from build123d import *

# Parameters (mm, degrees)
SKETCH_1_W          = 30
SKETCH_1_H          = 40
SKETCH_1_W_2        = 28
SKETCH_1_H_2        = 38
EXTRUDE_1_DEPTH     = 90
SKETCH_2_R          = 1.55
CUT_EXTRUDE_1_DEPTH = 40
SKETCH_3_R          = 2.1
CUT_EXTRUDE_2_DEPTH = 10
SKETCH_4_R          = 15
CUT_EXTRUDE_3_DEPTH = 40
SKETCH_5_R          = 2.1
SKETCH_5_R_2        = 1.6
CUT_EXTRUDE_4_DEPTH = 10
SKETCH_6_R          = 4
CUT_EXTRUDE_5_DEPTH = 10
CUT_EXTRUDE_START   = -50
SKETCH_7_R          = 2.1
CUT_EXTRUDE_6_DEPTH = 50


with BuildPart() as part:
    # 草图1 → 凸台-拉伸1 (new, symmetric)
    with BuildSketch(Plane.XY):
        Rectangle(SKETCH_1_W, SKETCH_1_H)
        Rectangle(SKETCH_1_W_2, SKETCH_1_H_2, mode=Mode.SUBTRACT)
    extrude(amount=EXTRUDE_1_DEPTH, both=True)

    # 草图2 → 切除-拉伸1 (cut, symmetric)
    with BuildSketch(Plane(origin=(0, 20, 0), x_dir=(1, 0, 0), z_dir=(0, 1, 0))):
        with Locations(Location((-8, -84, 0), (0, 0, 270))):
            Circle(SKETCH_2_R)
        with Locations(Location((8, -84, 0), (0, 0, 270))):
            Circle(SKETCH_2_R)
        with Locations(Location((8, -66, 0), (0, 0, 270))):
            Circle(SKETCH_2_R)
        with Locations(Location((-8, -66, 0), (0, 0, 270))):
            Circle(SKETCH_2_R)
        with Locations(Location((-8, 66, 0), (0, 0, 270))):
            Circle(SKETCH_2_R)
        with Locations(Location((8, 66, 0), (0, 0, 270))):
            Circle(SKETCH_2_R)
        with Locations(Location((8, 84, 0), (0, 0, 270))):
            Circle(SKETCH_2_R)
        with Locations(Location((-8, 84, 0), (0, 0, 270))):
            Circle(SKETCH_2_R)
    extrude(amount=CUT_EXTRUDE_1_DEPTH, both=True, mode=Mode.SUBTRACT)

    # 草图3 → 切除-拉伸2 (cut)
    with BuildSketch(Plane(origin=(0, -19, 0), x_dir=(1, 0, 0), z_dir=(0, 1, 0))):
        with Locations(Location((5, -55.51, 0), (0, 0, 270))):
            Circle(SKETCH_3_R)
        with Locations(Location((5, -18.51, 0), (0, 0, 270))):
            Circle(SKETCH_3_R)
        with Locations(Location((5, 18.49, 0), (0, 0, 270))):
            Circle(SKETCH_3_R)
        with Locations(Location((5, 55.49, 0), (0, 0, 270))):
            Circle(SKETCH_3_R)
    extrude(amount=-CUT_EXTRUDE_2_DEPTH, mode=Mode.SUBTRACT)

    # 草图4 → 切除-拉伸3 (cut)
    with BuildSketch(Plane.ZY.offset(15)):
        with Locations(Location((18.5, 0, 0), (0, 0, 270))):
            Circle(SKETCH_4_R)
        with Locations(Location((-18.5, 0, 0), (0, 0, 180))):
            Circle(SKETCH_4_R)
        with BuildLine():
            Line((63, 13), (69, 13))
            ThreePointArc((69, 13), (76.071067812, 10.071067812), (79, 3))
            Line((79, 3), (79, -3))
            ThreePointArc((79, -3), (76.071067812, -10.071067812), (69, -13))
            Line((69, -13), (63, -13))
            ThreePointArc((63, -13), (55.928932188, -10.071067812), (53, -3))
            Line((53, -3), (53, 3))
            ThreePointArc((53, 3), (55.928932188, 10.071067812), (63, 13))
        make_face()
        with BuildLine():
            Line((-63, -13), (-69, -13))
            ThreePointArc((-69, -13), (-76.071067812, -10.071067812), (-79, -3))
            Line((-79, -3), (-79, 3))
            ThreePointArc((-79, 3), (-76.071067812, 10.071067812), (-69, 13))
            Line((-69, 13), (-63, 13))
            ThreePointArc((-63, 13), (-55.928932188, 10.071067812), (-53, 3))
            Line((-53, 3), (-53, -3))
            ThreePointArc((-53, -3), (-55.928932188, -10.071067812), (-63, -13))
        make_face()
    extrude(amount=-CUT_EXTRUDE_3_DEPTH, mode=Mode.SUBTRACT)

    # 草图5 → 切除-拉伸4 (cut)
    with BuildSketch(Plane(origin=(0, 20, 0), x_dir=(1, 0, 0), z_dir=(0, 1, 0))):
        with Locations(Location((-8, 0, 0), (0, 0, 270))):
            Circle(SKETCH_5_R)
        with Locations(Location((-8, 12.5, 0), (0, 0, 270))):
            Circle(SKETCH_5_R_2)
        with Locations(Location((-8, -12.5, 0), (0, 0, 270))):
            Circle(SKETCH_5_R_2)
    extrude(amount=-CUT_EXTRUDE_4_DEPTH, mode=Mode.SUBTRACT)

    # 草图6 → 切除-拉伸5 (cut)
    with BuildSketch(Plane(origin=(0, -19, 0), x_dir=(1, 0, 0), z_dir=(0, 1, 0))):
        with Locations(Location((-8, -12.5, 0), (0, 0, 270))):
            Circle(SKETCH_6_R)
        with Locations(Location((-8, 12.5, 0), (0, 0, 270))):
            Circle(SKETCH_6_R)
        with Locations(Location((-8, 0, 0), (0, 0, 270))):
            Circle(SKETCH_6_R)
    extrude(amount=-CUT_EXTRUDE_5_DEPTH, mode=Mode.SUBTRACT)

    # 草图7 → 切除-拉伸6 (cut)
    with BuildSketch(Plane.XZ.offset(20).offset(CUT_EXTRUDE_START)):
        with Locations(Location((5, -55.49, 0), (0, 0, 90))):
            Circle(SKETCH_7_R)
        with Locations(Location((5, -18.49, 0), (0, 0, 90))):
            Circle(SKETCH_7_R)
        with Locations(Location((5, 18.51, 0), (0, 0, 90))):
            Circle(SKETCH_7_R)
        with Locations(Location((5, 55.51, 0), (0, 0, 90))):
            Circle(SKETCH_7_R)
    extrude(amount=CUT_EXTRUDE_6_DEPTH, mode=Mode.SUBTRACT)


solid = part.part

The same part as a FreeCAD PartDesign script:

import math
import FreeCAD as App
import Part
import Sketcher

V = App.Vector
Q = App.Units.Quantity


def add_polygon(sketch, points):
    """Adds a closed chain of lines whose ends are joined by coincident constraints."""
    first, n = sketch.GeometryCount, len(points)
    for a, b in zip(points, points[1:] + points[:1]):
        sketch.addGeometry(Part.LineSegment(App.Vector(*a, 0), App.Vector(*b, 0)), False)
    for i in range(n):
        sketch.addConstraint(Sketcher.Constraint("Coincident", first + i, 2, first + (i + 1) % n, 1))

doc = App.newDocument("Part")
params = doc.addObject("Spreadsheet::Sheet", "Params")
for row, (alias, value) in enumerate([
    ("sketch1_width", "30 mm"),
    ("sketch1_width2", "28 mm"),
    ("sketch1_height", "40 mm"),
    ("sketch1_height2", "38 mm"),
    ("pad1_length", "180 mm"),
    ("sketch2_diameter", "3.1 mm"),
    ("pocket1_length", "80 mm"),
    ("sketch3_diameter", "4.2 mm"),
    ("pocket2_length", "10 mm"),
    ("sketch4_diameter", "30 mm"),
    ("sketch4_radius", "10 mm"),
    ("sketch4_width", "6 mm"),
    ("pocket3_length", "40 mm"),
    ("sketch5_diameter", "4.2 mm"),
    ("sketch5_diameter2", "3.2 mm"),
    ("pocket4_length", "10 mm"),
    ("sketch6_diameter", "8 mm"),
    ("pocket5_length", "10 mm"),
    ("sketch7_diameter", "4.2 mm"),
    ("pocket6_length", "50 mm"),
], start=1):
    params.set(f"A{row}", alias)
    params.set(f"B{row}", "=" + value)
    params.setAlias(f"B{row}", alias)

body = doc.addObject("PartDesign::Body", "Body")

# Sketch on XY plane
sketch1 = body.newObject("Sketcher::SketchObject", "Sketch")
sketch1.AttachmentSupport = (doc.getObject("XY_Plane"), [""])
sketch1.MapMode = "FlatFace"
add_polygon(sketch1, [(-15, 20), (-15, -20), (15, -20), (15, 20)])  # lines 0-3
add_polygon(sketch1, [(14, -19), (-14, -19), (-14, 19), (14, 19)])  # lines 4-7
sketch1.addConstraint([
    Sketcher.Constraint("Vertical", 0),
    Sketcher.Constraint("Horizontal", 1),
    Sketcher.Constraint("Vertical", 2),
    Sketcher.Constraint("Horizontal", 3),
    Sketcher.Constraint("Horizontal", 4),
    Sketcher.Constraint("Vertical", 5),
    Sketcher.Constraint("Horizontal", 6),
    Sketcher.Constraint("Vertical", 7),
    Sketcher.Constraint("Symmetric", 0, 2, 2, 2, -1, 1),
    Sketcher.Constraint("Symmetric", 4, 2, 6, 2, -1, 1),
    Sketcher.Constraint("DistanceX", 1, 1, 1, 2, Q("30 mm")),
    Sketcher.Constraint("DistanceX", 4, 2, 4, 1, Q("28 mm")),
    Sketcher.Constraint("DistanceY", 0, 2, 0, 1, Q("40 mm")),
    Sketcher.Constraint("DistanceY", 5, 1, 5, 2, Q("38 mm")),
])
sketch1.setExpression("Constraints[18]", "Params.sketch1_width")
sketch1.setExpression("Constraints[19]", "Params.sketch1_width2")
sketch1.setExpression("Constraints[20]", "Params.sketch1_height")
sketch1.setExpression("Constraints[21]", "Params.sketch1_height2")
pad1 = body.newObject("PartDesign::Pad", "Pad")
pad1.Profile = sketch1
pad1.setExpression("Length", "Params.pad1_length")
pad1.Midplane = True

# Sketch on XZ plane
sketch2 = body.newObject("Sketcher::SketchObject", "Sketch001")
sketch2.AttachmentSupport = (doc.getObject("XZ_Plane"), [""])
sketch2.MapMode = "FlatFace"
sketch2.AttachmentOffset = App.Placement(V(0, 0, -20), App.Rotation())
sketch2.addGeometry([
    Part.Circle(V(-8, 84, 0), V(0, 0, 1), 1.55),  # 0
    Part.Circle(V(8, 84, 0), V(0, 0, 1), 1.55),  # 1
    Part.Circle(V(8, 66, 0), V(0, 0, 1), 1.55),  # 2
    Part.Circle(V(-8, 66, 0), V(0, 0, 1), 1.55),  # 3
    Part.Circle(V(-8, -66, 0), V(0, 0, 1), 1.55),  # 4
    Part.Circle(V(8, -66, 0), V(0, 0, 1), 1.55),  # 5
    Part.Circle(V(8, -84, 0), V(0, 0, 1), 1.55),  # 6
    Part.Circle(V(-8, -84, 0), V(0, 0, 1), 1.55),  # 7
], False)
sketch2.addConstraint([
    Sketcher.Constraint("Equal", 0, 1),
    Sketcher.Constraint("Equal", 1, 2),
    Sketcher.Constraint("Equal", 2, 3),
    Sketcher.Constraint("Equal", 3, 4),
    Sketcher.Constraint("Equal", 4, 5),
    Sketcher.Constraint("Equal", 5, 6),
    Sketcher.Constraint("Equal", 6, 7),
    Sketcher.Constraint("Symmetric", 2, 3, 4, 3, -1, 1),
    Sketcher.Constraint("Symmetric", 3, 3, 5, 3, -1, 1),
    Sketcher.Constraint("Symmetric", 0, 3, 6, 3, -1, 1),
    Sketcher.Constraint("Symmetric", 1, 3, 7, 3, -1, 1),
    Sketcher.Constraint("Symmetric", 0, 3, 1, 3, -2),
    Sketcher.Constraint("Symmetric", 2, 3, 3, 3, -2),
    Sketcher.Constraint("Vertical", 1, 3, 2, 3),
    Sketcher.Constraint("Diameter", 0, Q("3.1 mm")),
    Sketcher.Constraint("DistanceX", 0, 3, -1, 1, Q("8 mm")),
    Sketcher.Constraint("DistanceY", -1, 1, 0, 3, Q("84 mm")),
    Sketcher.Constraint("DistanceY", -1, 1, 2, 3, Q("66 mm")),
])
sketch2.setExpression("Constraints[14]", "Params.sketch2_diameter")
pocket1 = body.newObject("PartDesign::Pocket", "Pocket")
pocket1.Profile = sketch2
pocket1.setExpression("Length", "Params.pocket1_length")
pocket1.Midplane = True

# Sketch on XZ plane
sketch3 = body.newObject("Sketcher::SketchObject", "Sketch002")
sketch3.AttachmentSupport = (doc.getObject("XZ_Plane"), [""])
sketch3.MapMode = "FlatFace"
sketch3.AttachmentOffset = App.Placement(V(0, 0, 19), App.Rotation())
sketch3.addGeometry([
    Part.Circle(V(5, 55.51, 0), V(0, 0, 1), 2.1),
    Part.Circle(V(5, 18.51, 0), V(0, 0, 1), 2.1),
    Part.Circle(V(5, -18.49, 0), V(0, 0, 1), 2.1),
    Part.Circle(V(5, -55.49, 0), V(0, 0, 1), 2.1),
], False)
sketch3.addConstraint([
    Sketcher.Constraint("Equal", 0, 1),
    Sketcher.Constraint("Equal", 1, 2),
    Sketcher.Constraint("Equal", 2, 3),
    Sketcher.Constraint("Vertical", 0, 3, 1, 3),
    Sketcher.Constraint("Vertical", 1, 3, 2, 3),
    Sketcher.Constraint("Vertical", 2, 3, 3, 3),
    Sketcher.Constraint("Diameter", 0, Q("4.2 mm")),
    Sketcher.Constraint("DistanceX", -1, 1, 0, 3, Q("5 mm")),
    Sketcher.Constraint("DistanceY", 1, 3, 0, 3, Q("37 mm")),
    Sketcher.Constraint("DistanceY", 2, 3, 1, 3, Q("37 mm")),
    Sketcher.Constraint("DistanceY", 3, 3, 2, 3, Q("37 mm")),
    Sketcher.Constraint("DistanceY", -1, 1, 0, 3, Q("55.51 mm")),
])
sketch3.setExpression("Constraints[6]", "Params.sketch3_diameter")
pocket2 = body.newObject("PartDesign::Pocket", "Pocket001")
pocket2.Profile = sketch3
pocket2.setExpression("Length", "Params.pocket2_length")
pocket2.Reversed = True

# Sketch on YZ plane
sketch4 = body.newObject("Sketcher::SketchObject", "Sketch003")
sketch4.AttachmentSupport = (doc.getObject("YZ_Plane"), [""])
sketch4.MapMode = "FlatFace"
sketch4.AttachmentOffset = App.Placement(V(0, 0, -15), App.Rotation())
sketch4.addGeometry([
    Part.Circle(V(0, 18.5, 0), V(0, 0, 1), 15),  # 0
    Part.Circle(V(0, -18.5, 0), V(0, 0, 1), 15),  # 1
    Part.LineSegment(V(13, 69, 0), V(13, 63, 0)),  # 2
    Part.ArcOfCircle(Part.Circle(V(3, 63, 0), V(0, 0, 1), 10), math.radians(-90), math.radians(0)),  # 3
    Part.LineSegment(V(3, 53, 0), V(-3, 53, 0)),  # 4
    Part.ArcOfCircle(Part.Circle(V(-3, 63, 0), V(0, 0, 1), 10), math.radians(180), math.radians(270)),  # 5
    Part.LineSegment(V(-13, 63, 0), V(-13, 69, 0)),  # 6
    Part.ArcOfCircle(Part.Circle(V(-3, 69, 0), V(0, 0, 1), 10), math.radians(90), math.radians(180)),  # 7
    Part.LineSegment(V(-3, 79, 0), V(3, 79, 0)),  # 8
    Part.ArcOfCircle(Part.Circle(V(3, 69, 0), V(0, 0, 1), 10), math.radians(0), math.radians(90)),  # 9
    Part.LineSegment(V(-13, -69, 0), V(-13, -63, 0)),  # 10
    Part.ArcOfCircle(Part.Circle(V(-3, -63, 0), V(0, 0, 1), 10), math.radians(90), math.radians(180)),  # 11
    Part.LineSegment(V(-3, -53, 0), V(3, -53, 0)),  # 12
    Part.ArcOfCircle(Part.Circle(V(3, -63, 0), V(0, 0, 1), 10), math.radians(0), math.radians(90)),  # 13
    Part.LineSegment(V(13, -63, 0), V(13, -69, 0)),  # 14
    Part.ArcOfCircle(Part.Circle(V(3, -69, 0), V(0, 0, 1), 10), math.radians(-90), math.radians(0)),  # 15
    Part.LineSegment(V(3, -79, 0), V(-3, -79, 0)),  # 16
    Part.ArcOfCircle(Part.Circle(V(-3, -69, 0), V(0, 0, 1), 10), math.radians(180), math.radians(270)),  # 17
], False)
sketch4.addConstraint([
    Sketcher.Constraint("Tangent", 2, 2, 3, 2),
    Sketcher.Constraint("Tangent", 3, 1, 4, 1),
    Sketcher.Constraint("Tangent", 4, 2, 5, 2),
    Sketcher.Constraint("Tangent", 5, 1, 6, 1),
    Sketcher.Constraint("Tangent", 6, 2, 7, 2),
    Sketcher.Constraint("Tangent", 7, 1, 8, 1),
    Sketcher.Constraint("Tangent", 8, 2, 9, 2),
    Sketcher.Constraint("Tangent", 9, 1, 2, 1),
    Sketcher.Constraint("Tangent", 10, 2, 11, 2),
    Sketcher.Constraint("Tangent", 11, 1, 12, 1),
    Sketcher.Constraint("Tangent", 12, 2, 13, 2),
    Sketcher.Constraint("Tangent", 13, 1, 14, 1),
    Sketcher.Constraint("Tangent", 14, 2, 15, 2),
    Sketcher.Constraint("Tangent", 15, 1, 16, 1),
    Sketcher.Constraint("Tangent", 16, 2, 17, 2),
    Sketcher.Constraint("Tangent", 17, 1, 10, 1),
    Sketcher.Constraint("Vertical", 2),
    Sketcher.Constraint("Horizontal", 4),
    Sketcher.Constraint("Vertical", 6),
    Sketcher.Constraint("Horizontal", 8),
    Sketcher.Constraint("Vertical", 10),
    Sketcher.Constraint("Horizontal", 12),
    Sketcher.Constraint("Vertical", 14),
    Sketcher.Constraint("Horizontal", 16),
    Sketcher.Constraint("Equal", 0, 1),
    Sketcher.Constraint("Equal", 3, 5),
    Sketcher.Constraint("Equal", 5, 7),
    Sketcher.Constraint("Equal", 7, 9),
    Sketcher.Constraint("Equal", 9, 11),
    Sketcher.Constraint("Equal", 11, 13),
    Sketcher.Constraint("Equal", 13, 15),
    Sketcher.Constraint("Equal", 15, 17),
    Sketcher.Constraint("Symmetric", 0, 3, 1, 3, -1, 1),
    Sketcher.Constraint("Symmetric", 3, 3, 11, 3, -1, 1),
    Sketcher.Constraint("Symmetric", 7, 3, 15, 3, -1, 1),
    Sketcher.Constraint("PointOnObject", 0, 3, -2),
    Sketcher.Constraint("Vertical", 7, 3, 11, 3),
    Sketcher.Constraint("Equal", 16, 2),
    Sketcher.Constraint("Diameter", 0, Q("30 mm")),
    Sketcher.Constraint("Radius", 3, Q("10 mm")),
    Sketcher.Constraint("DistanceX", 4, 2, 4, 1, Q("6 mm")),
    Sketcher.Constraint("DistanceY", -1, 1, 3, 3, Q("63 mm")),
    Sketcher.Constraint("DistanceY", 1, 3, 0, 3, Q("37 mm")),
])
sketch4.setExpression("Constraints[38]", "Params.sketch4_diameter")
sketch4.setExpression("Constraints[39]", "Params.sketch4_radius")
sketch4.setExpression("Constraints[40]", "Params.sketch4_width")
pocket3 = body.newObject("PartDesign::Pocket", "Pocket002")
pocket3.Profile = sketch4
pocket3.setExpression("Length", "Params.pocket3_length")
pocket3.Reversed = True

# Sketch on XZ plane
sketch5 = body.newObject("Sketcher::SketchObject", "Sketch004")
sketch5.AttachmentSupport = (doc.getObject("XZ_Plane"), [""])
sketch5.MapMode = "FlatFace"
sketch5.AttachmentOffset = App.Placement(V(0, 0, -20), App.Rotation())
sketch5.addGeometry([
    Part.Circle(V(-8, 0, 0), V(0, 0, 1), 2.1),
    Part.Circle(V(-8, -12.5, 0), V(0, 0, 1), 1.6),
    Part.Circle(V(-8, 12.5, 0), V(0, 0, 1), 1.6),
], False)
sketch5.addConstraint([
    Sketcher.Constraint("Equal", 1, 2),
    Sketcher.Constraint("Symmetric", 1, 3, 2, 3, -1),
    Sketcher.Constraint("PointOnObject", 0, 3, -1),
    Sketcher.Constraint("Vertical", 0, 3, 1, 3),
    Sketcher.Constraint("Diameter", 0, Q("4.2 mm")),
    Sketcher.Constraint("Diameter", 1, Q("3.2 mm")),
    Sketcher.Constraint("DistanceX", 0, 3, -1, 1, Q("8 mm")),
    Sketcher.Constraint("DistanceY", 1, 3, 2, 3, Q("25 mm")),
])
sketch5.setExpression("Constraints[4]", "Params.sketch5_diameter")
sketch5.setExpression("Constraints[5]", "Params.sketch5_diameter2")
pocket4 = body.newObject("PartDesign::Pocket", "Pocket003")
pocket4.Profile = sketch5
pocket4.setExpression("Length", "Params.pocket4_length")
pocket4.Reversed = True

# Sketch on XZ plane
sketch6 = body.newObject("Sketcher::SketchObject", "Sketch005")
sketch6.AttachmentSupport = (doc.getObject("XZ_Plane"), [""])
sketch6.MapMode = "FlatFace"
sketch6.AttachmentOffset = App.Placement(V(0, 0, 19), App.Rotation())
sketch6.addGeometry([
    Part.Circle(V(-8, 12.5, 0), V(0, 0, 1), 4),
    Part.Circle(V(-8, -12.5, 0), V(0, 0, 1), 4),
    Part.Circle(V(-8, 0, 0), V(0, 0, 1), 4),
], False)
sketch6.addConstraint([
    Sketcher.Constraint("Equal", 0, 1),
    Sketcher.Constraint("Equal", 1, 2),
    Sketcher.Constraint("Symmetric", 0, 3, 1, 3, -1),
    Sketcher.Constraint("PointOnObject", 2, 3, -1),
    Sketcher.Constraint("Vertical", 1, 3, 2, 3),
    Sketcher.Constraint("Diameter", 0, Q("8 mm")),
    Sketcher.Constraint("DistanceX", 0, 3, -1, 1, Q("8 mm")),
    Sketcher.Constraint("DistanceY", 1, 3, 0, 3, Q("25 mm")),
])
sketch6.setExpression("Constraints[5]", "Params.sketch6_diameter")
pocket5 = body.newObject("PartDesign::Pocket", "Pocket004")
pocket5.Profile = sketch6
pocket5.setExpression("Length", "Params.pocket5_length")
pocket5.Reversed = True

# Sketch on XZ plane
sketch7 = body.newObject("Sketcher::SketchObject", "Sketch006")
sketch7.AttachmentSupport = (doc.getObject("XZ_Plane"), [""])
sketch7.MapMode = "FlatFace"
sketch7.AttachmentOffset = App.Placement(V(0, 0, -30), App.Rotation())
sketch7.addGeometry([
    Part.Circle(V(5, -55.49, 0), V(0, 0, 1), 2.1),
    Part.Circle(V(5, -18.49, 0), V(0, 0, 1), 2.1),
    Part.Circle(V(5, 18.51, 0), V(0, 0, 1), 2.1),
    Part.Circle(V(5, 55.51, 0), V(0, 0, 1), 2.1),
], False)
sketch7.addConstraint([
    Sketcher.Constraint("Equal", 0, 1),
    Sketcher.Constraint("Equal", 1, 2),
    Sketcher.Constraint("Equal", 2, 3),
    Sketcher.Constraint("Vertical", 0, 3, 1, 3),
    Sketcher.Constraint("Vertical", 1, 3, 2, 3),
    Sketcher.Constraint("Vertical", 2, 3, 3, 3),
    Sketcher.Constraint("Diameter", 0, Q("4.2 mm")),
    Sketcher.Constraint("DistanceX", -1, 1, 0, 3, Q("5 mm")),
    Sketcher.Constraint("DistanceY", 0, 3, 1, 3, Q("37 mm")),
    Sketcher.Constraint("DistanceY", 1, 3, 2, 3, Q("37 mm")),
    Sketcher.Constraint("DistanceY", 2, 3, 3, 3, Q("37 mm")),
    Sketcher.Constraint("DistanceY", 0, 3, -1, 1, Q("55.49 mm")),
])
sketch7.setExpression("Constraints[6]", "Params.sketch7_diameter")
pocket6 = body.newObject("PartDesign::Pocket", "Pocket005")
pocket6.Profile = sketch7
pocket6.setExpression("Length", "Params.pocket6_length")
pocket6.Reversed = True

doc.recompute()
